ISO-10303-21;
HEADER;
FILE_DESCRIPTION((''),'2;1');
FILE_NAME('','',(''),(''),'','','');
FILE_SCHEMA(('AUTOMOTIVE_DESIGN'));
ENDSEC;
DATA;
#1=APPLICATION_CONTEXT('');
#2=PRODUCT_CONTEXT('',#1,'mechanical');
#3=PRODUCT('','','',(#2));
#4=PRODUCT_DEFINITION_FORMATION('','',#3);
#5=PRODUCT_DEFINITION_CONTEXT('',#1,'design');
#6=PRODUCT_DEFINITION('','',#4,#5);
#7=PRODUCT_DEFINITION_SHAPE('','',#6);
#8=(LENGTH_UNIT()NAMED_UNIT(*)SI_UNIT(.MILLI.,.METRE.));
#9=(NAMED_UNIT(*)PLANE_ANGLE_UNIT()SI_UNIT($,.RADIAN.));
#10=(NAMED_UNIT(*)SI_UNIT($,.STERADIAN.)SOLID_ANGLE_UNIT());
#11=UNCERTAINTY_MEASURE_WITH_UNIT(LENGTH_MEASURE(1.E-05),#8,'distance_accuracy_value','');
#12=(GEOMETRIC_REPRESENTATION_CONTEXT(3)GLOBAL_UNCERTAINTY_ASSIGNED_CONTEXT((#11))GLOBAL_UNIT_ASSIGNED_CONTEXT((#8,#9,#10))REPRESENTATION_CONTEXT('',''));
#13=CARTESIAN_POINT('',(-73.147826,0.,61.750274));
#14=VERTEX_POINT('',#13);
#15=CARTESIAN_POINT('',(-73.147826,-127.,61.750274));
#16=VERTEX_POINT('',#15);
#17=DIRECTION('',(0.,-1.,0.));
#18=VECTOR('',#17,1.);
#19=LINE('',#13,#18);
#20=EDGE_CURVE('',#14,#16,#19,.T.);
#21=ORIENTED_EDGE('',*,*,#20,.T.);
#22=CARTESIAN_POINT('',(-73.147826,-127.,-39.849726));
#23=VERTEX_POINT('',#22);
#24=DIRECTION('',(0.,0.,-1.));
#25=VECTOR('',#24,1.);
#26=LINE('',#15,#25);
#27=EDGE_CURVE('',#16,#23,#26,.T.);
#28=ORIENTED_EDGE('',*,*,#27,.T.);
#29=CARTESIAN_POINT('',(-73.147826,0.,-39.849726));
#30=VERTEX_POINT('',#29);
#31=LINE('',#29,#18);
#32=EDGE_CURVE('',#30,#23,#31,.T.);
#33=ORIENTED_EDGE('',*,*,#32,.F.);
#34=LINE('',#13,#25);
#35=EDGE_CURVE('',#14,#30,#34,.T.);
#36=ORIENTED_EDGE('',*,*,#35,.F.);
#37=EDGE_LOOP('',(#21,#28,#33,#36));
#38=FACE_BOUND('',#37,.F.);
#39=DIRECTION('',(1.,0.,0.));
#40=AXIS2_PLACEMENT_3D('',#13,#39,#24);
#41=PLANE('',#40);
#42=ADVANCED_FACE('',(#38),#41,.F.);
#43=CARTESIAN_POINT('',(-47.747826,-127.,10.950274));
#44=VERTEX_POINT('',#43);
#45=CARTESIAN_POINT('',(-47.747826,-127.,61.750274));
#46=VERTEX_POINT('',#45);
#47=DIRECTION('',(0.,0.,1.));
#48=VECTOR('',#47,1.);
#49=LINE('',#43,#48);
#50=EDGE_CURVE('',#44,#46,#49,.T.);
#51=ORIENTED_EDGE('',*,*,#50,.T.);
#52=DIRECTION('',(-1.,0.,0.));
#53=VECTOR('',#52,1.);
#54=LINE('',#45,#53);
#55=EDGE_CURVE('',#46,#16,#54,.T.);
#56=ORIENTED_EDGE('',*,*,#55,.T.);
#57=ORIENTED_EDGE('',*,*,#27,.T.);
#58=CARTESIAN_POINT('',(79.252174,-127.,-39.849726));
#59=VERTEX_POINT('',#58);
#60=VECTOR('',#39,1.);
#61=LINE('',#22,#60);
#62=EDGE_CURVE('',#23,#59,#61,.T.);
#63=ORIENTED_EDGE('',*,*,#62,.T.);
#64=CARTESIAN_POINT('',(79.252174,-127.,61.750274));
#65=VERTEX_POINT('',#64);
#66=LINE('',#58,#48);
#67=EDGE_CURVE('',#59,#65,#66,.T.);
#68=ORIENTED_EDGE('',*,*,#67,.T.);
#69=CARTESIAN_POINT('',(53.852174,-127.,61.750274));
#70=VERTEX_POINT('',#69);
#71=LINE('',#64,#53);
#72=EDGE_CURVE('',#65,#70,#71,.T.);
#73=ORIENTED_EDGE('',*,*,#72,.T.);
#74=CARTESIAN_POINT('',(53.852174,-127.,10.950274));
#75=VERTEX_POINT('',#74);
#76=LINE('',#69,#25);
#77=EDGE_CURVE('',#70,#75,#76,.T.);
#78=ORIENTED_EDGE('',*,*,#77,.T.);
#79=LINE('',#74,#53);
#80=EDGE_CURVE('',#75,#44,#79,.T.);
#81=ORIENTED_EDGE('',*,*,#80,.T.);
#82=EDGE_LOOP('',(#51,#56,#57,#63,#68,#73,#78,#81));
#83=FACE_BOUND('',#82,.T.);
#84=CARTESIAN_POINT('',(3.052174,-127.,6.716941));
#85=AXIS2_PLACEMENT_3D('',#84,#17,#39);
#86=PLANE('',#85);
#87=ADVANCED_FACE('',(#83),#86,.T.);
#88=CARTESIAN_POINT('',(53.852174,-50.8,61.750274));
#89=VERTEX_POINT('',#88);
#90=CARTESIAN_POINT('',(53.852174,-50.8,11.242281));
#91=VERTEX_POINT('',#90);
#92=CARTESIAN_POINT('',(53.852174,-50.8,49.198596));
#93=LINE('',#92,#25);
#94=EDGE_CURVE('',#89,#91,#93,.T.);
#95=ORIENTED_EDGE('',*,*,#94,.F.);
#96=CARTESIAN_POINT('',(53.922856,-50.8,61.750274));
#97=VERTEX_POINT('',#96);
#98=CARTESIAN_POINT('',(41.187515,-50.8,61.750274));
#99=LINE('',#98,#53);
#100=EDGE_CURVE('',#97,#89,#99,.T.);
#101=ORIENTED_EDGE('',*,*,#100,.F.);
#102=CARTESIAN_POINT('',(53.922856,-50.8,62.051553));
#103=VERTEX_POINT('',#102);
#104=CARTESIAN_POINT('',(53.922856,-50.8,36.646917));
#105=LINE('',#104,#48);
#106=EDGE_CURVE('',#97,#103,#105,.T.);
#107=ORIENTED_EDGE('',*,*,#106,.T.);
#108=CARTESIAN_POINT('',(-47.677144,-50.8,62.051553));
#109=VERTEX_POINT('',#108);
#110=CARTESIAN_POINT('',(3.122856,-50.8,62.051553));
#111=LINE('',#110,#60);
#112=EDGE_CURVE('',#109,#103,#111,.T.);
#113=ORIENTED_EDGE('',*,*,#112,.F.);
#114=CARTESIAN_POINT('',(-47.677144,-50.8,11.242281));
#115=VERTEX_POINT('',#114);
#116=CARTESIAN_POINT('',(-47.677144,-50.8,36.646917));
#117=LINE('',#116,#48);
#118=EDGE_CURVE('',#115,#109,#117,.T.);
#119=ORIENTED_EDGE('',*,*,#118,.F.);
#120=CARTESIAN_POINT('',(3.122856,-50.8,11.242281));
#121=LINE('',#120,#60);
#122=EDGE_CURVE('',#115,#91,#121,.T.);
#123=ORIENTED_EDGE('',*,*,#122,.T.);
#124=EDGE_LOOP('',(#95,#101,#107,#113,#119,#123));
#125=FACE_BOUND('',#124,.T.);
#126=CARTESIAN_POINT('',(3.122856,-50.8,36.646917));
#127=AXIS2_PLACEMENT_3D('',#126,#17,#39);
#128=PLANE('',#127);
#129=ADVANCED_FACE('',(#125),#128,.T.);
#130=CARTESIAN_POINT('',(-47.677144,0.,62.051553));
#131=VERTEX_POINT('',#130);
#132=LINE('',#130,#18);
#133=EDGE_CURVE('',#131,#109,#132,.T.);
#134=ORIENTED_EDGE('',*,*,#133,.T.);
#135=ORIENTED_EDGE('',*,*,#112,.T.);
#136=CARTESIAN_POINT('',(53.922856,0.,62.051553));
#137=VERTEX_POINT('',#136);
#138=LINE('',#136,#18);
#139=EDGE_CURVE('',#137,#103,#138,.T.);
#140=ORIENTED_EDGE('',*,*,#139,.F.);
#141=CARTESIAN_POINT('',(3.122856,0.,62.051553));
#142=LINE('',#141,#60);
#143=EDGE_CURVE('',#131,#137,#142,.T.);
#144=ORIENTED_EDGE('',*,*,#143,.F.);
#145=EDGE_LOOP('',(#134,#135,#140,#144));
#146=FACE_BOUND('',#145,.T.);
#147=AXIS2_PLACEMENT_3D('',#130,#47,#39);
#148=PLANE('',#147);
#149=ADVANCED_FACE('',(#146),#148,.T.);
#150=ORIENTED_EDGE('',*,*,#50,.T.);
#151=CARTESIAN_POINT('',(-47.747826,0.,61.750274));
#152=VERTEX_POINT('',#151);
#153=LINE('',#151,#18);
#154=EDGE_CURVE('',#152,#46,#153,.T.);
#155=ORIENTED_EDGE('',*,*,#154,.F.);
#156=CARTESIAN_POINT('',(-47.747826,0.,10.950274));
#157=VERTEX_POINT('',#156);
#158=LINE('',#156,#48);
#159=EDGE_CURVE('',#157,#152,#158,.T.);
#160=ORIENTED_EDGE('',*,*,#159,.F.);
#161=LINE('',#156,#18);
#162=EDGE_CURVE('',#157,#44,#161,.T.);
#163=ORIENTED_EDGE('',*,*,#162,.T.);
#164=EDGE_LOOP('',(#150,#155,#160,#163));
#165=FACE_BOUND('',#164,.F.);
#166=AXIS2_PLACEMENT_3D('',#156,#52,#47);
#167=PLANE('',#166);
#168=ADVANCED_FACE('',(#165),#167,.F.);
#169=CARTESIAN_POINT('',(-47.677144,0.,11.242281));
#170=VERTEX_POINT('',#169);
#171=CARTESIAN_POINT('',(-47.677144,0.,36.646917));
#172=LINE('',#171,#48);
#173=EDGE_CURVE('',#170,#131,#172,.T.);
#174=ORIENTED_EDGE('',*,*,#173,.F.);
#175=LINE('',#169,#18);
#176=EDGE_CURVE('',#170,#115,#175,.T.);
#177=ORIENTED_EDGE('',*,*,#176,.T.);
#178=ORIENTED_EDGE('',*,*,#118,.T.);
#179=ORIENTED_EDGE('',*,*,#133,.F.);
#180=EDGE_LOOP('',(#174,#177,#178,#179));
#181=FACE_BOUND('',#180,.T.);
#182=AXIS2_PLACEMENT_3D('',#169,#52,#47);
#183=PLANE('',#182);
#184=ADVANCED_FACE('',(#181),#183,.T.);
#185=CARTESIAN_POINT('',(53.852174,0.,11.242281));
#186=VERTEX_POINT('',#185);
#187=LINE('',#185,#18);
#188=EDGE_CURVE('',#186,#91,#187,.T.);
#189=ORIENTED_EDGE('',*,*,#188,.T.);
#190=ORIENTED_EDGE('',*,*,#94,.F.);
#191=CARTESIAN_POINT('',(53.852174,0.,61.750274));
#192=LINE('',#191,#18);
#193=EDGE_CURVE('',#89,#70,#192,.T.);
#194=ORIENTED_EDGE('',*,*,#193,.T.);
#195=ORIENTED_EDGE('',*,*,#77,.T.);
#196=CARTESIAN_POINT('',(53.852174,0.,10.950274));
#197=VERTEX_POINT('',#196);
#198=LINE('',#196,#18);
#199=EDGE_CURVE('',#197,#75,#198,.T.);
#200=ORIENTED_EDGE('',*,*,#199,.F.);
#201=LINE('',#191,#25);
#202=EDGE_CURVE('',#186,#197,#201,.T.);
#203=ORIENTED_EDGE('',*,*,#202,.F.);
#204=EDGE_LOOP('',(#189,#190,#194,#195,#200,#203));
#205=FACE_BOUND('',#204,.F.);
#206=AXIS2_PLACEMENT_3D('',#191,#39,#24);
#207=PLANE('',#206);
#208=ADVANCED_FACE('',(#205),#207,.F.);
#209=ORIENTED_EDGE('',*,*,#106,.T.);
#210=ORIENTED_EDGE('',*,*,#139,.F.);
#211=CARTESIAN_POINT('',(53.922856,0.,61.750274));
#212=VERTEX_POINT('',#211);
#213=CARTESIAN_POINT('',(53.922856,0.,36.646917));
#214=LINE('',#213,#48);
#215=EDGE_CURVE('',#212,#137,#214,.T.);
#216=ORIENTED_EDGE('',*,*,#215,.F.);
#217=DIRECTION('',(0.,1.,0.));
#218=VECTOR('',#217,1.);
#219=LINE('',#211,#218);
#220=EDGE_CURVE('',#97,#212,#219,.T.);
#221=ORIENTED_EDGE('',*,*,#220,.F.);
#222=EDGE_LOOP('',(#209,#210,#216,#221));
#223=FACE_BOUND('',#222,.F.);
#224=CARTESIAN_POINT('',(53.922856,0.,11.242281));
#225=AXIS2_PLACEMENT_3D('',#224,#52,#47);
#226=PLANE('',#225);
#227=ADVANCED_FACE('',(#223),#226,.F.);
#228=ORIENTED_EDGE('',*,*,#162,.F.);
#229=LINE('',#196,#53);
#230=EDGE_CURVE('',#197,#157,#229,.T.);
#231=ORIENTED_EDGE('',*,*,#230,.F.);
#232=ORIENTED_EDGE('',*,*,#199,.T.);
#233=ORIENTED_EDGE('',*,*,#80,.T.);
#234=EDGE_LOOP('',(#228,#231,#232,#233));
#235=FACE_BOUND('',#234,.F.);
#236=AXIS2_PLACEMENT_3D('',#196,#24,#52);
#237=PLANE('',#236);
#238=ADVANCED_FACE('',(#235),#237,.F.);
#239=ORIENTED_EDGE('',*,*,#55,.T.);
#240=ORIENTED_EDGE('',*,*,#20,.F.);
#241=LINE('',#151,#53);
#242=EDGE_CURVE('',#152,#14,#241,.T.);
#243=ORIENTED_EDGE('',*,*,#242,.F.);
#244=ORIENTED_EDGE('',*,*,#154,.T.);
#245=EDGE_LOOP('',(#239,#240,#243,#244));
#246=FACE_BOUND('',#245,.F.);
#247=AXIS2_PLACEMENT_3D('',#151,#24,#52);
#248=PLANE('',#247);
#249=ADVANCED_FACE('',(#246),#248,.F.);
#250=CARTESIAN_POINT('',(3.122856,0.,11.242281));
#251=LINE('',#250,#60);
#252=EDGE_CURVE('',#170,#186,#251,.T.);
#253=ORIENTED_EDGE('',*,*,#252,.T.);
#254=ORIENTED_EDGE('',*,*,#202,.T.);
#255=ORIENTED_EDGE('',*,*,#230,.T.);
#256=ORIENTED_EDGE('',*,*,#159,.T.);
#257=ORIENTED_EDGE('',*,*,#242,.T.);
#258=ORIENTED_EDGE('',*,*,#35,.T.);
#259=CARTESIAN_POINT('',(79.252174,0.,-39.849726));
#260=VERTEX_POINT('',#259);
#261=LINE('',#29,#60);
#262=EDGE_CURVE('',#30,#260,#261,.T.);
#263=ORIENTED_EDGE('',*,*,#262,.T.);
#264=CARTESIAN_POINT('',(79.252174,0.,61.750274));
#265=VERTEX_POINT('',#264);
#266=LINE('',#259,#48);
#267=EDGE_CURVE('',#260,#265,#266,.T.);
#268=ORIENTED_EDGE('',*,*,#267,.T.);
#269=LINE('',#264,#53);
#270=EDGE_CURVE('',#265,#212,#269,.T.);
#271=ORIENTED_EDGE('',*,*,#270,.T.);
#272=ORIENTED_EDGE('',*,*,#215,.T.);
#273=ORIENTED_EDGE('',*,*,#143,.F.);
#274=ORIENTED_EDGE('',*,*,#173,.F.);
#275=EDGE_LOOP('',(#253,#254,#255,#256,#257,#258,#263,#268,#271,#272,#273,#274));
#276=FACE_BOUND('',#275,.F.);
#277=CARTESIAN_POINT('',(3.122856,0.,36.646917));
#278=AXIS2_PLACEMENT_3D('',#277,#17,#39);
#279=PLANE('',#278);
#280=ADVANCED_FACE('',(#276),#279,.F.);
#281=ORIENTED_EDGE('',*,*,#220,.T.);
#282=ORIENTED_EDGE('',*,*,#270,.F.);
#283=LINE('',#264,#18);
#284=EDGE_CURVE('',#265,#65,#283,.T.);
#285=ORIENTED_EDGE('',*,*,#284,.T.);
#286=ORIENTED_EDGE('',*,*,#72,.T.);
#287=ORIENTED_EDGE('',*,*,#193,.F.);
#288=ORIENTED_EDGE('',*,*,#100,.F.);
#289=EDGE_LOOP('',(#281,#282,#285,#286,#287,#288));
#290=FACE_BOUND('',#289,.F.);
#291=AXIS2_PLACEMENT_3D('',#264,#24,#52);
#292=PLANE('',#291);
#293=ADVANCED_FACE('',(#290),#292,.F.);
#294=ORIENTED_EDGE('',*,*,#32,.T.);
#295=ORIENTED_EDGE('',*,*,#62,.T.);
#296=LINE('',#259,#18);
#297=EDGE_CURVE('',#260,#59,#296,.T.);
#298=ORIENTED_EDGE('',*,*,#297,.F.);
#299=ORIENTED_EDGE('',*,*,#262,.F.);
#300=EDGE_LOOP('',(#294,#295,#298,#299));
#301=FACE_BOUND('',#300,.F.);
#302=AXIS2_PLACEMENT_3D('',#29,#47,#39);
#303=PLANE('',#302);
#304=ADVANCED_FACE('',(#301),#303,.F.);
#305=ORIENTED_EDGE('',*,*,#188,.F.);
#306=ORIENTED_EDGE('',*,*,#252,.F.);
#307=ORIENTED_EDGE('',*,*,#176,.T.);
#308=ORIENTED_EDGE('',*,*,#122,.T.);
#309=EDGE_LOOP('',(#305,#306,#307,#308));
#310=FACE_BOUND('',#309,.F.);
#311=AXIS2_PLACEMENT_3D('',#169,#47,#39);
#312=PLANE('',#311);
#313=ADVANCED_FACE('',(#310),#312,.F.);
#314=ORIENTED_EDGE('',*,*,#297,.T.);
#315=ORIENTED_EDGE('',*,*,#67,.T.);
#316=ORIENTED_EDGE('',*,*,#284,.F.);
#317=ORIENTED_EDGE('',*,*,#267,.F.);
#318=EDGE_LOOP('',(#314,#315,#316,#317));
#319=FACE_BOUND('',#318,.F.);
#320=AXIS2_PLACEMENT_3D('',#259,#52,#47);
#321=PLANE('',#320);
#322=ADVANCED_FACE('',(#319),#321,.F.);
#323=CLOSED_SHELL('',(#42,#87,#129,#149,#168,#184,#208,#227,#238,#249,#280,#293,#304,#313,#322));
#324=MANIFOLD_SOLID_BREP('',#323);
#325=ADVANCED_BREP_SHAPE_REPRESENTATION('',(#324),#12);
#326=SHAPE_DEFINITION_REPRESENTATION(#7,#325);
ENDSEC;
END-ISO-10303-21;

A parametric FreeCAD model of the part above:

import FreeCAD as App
import Part
import Sketcher

V = App.Vector
Q = App.Units.Quantity

doc = App.newDocument("Part")
params = doc.addObject("Spreadsheet::Sheet", "Params")
for row, (alias, value) in enumerate([
    ("sketch1_width", "6 in"),
    ("sketch1_width2", "1 in"),
    ("sketch1_height", "2 in"),
    ("pad1_length", "5 in"),
    ("sketch2_width", "4 in"),
    ("pad2_length", "2 in"),
], start=1):
    params.set(f"A{row}", alias)
    params.set(f"B{row}", "=" + value)
    params.setAlias(f"B{row}", alias)

body = doc.addObject("PartDesign::Body", "Body")

# Sketch on XZ plane
sketch1 = body.newObject("Sketcher::SketchObject", "Sketch")
sketch1.AttachmentSupport = (doc.getObject("XZ_Plane"), [""])
sketch1.MapMode = "FlatFace"
sketch1.addGeometry([
    Part.LineSegment(V(-73.147826, 61.750274, 0), V(-73.147826, -39.849726, 0)),  # 0
    Part.LineSegment(V(-73.147826, -39.849726, 0), V(79.252174, -39.849726, 0)),  # 1
    Part.LineSegment(V(79.252174, -39.849726, 0), V(79.252174, 61.750274, 0)),  # 2
    Part.LineSegment(V(79.252174, 61.750274, 0), V(53.852174, 61.750274, 0)),  # 3
    Part.LineSegment(V(53.852174, 61.750274, 0), V(53.852174, 10.950274, 0)),  # 4
    Part.LineSegment(V(53.852174, 10.950274, 0), V(-47.747826, 10.950274, 0)),  # 5
    Part.LineSegment(V(-47.747826, 10.950274, 0), V(-47.747826, 61.750274, 0)),  # 6
    Part.LineSegment(V(-47.747826, 61.750274, 0), V(-73.147826, 61.750274, 0)),  # 7
], False)
sketch1.addConstraint([
    Sketcher.Constraint("Coincident", 0, 2, 1, 1),
    Sketcher.Constraint("Coincident", 1, 2, 2, 1),
    Sketcher.Constraint("Coincident", 2, 2, 3, 1),
    Sketcher.Constraint("Coincident", 3, 2, 4, 1),
    Sketcher.Constraint("Coincident", 4, 2, 5, 1),
    Sketcher.Constraint("Coincident", 5, 2, 6, 1),
    Sketcher.Constraint("Coincident", 6, 2, 7, 1),
    Sketcher.Constraint("Coincident", 7, 2, 0, 1),
    Sketcher.Constraint("Vertical", 0),
    Sketcher.Constraint("Horizontal", 1),
    Sketcher.Constraint("Vertical", 2),
    Sketcher.Constraint("Horizontal", 3),
    Sketcher.Constraint("Vertical", 4),
    Sketcher.Constraint("Horizontal", 5),
    Sketcher.Constraint("Vertical", 6),
    Sketcher.Constraint("Horizontal", 7),
    Sketcher.Constraint("Horizontal", 3, 2, 6, 2),
    Sketcher.Constraint("Equal", 3, 7),
    Sketcher.Constraint("Equal", 5, 0),
    Sketcher.Constraint("DistanceX", 1, 1, 1, 2, Q("6 in")),
    Sketcher.Constraint("DistanceX", 3, 2, 3, 1, Q("1 in")),
    Sketcher.Constraint("DistanceY", 4, 2, 4, 1, Q("2 in")),
    Sketcher.Constraint("DistanceX", 0, 2, -1, 1, 73.147826),
    Sketcher.Constraint("DistanceY", 0, 2, -1, 1, 39.849726),
])
sketch1.setExpression("Constraints[19]", "Params.sketch1_width")
sketch1.setExpression("Constraints[20]", "Params.sketch1_width2")
sketch1.setExpression("Constraints[21]", "Params.sketch1_height")
pad1 = body.newObject("PartDesign::Pad", "Pad")
pad1.Profile = sketch1
pad1.setExpression("Length", "Params.pad1_length")

# Sketch on XZ plane
sketch2 = body.newObject("Sketcher::SketchObject", "Sketch001")
sketch2.AttachmentSupport = (doc.getObject("XZ_Plane"), [""])
sketch2.MapMode = "FlatFace"
sketch2.addGeometry([
    Part.LineSegment(V(-47.677144, 62.051553, 0), V(-47.677144, 11.242281, 0)),
    Part.LineSegment(V(-47.677144, 11.242281, 0), V(53.922856, 11.242281, 0)),
    Part.LineSegment(V(53.922856, 11.242281, 0), V(53.922856, 62.051553, 0)),
    Part.LineSegment(V(53.922856, 62.051553, 0), V(-47.677144, 62.051553, 0)),
], False)
sketch2.addConstraint([
    Sketcher.Constraint("Coincident", 0, 2, 1, 1),
    Sketcher.Constraint("Coincident", 1, 2, 2, 1),
    Sketcher.Constraint("Coincident", 2, 2, 3, 1),
    Sketcher.Constraint("Coincident", 3, 2, 0, 1),
    Sketcher.Constraint("Vertical", 0),
    Sketcher.Constraint("Horizontal", 1),
    Sketcher.Constraint("Vertical", 2),
    Sketcher.Constraint("Horizontal", 3),
    Sketcher.Constraint("DistanceX", 1, 1, 1, 2, Q("4 in")),
    Sketcher.Constraint("DistanceY", 0, 2, 0, 1, 50.809272),
    Sketcher.Constraint("DistanceY", -1, 1, 0, 2, 11.242281),
    Sketcher.Constraint("DistanceX", 0, 2, -1, 1, 47.677144),
])
sketch2.setExpression("Constraints[8]", "Params.sketch2_width")
pad2 = body.newObject("PartDesign::Pad", "Pad001")
pad2.Profile = sketch2
pad2.setExpression("Length", "Params.pad2_length")

doc.recompute()
